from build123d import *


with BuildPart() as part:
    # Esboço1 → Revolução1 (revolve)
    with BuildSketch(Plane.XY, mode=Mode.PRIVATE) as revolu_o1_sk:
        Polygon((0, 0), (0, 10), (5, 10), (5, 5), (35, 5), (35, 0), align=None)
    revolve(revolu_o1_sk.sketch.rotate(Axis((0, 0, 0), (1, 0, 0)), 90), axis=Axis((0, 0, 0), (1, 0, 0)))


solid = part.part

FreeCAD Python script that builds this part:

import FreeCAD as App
import Part
import Sketcher
from FreeCAD import Vector

doc = App.newDocument("Part")
body = doc.addObject("PartDesign::Body", "Body")

# Sketch on XY plane
sketch1 = body.newObject("Sketcher::SketchObject", "Sketch")
sketch1.AttachmentSupport = (doc.getObject("XY_Plane"), [""])
sketch1.MapMode = "FlatFace"
sketch1.addGeometry([
    Part.LineSegment(Vector(0, 10, 0), Vector(0, 0, 0)),  # 0
    Part.LineSegment(Vector(0, 0, 0), Vector(35, 0, 0)),  # 1
    Part.LineSegment(Vector(35, 0, 0), Vector(35, 5, 0)),  # 2
    Part.LineSegment(Vector(35, 5, 0), Vector(5, 5, 0)),  # 3
    Part.LineSegment(Vector(5, 5, 0), Vector(5, 10, 0)),  # 4
    Part.LineSegment(Vector(5, 10, 0), Vector(0, 10, 0)),  # 5
], False)
sketch1.addConstraint([
    Sketcher.Constraint("Coincident", 0, 2, 1, 1),
    Sketcher.Constraint("Coincident", 1, 2, 2, 1),
    Sketcher.Constraint("Coincident", 2, 2, 3, 1),
    Sketcher.Constraint("Coincident", 3, 2, 4, 1),
    Sketcher.Constraint("Coincident", 4, 2, 5, 1),
    Sketcher.Constraint("Coincident", 5, 2, 0, 1),
    Sketcher.Constraint("Vertical", 0),
    Sketcher.Constraint("Horizontal", 1),
    Sketcher.Constraint("Vertical", 2),
    Sketcher.Constraint("Horizontal", 3),
    Sketcher.Constraint("Vertical", 4),
    Sketcher.Constraint("Horizontal", 5),
    Sketcher.Constraint("Coincident", 0, 2, -1, 1),
    Sketcher.Constraint("Equal", 5, 2),
    Sketcher.Constraint("Equal", 2, 4),
    Sketcher.Constraint("DistanceX", 1, 1, 1, 2, 35.0),
    Sketcher.Constraint("DistanceX", 3, 2, 3, 1, 30.0),
])
revolution = body.newObject("PartDesign::Revolution", "Revolution")
revolution.Profile = sketch1
revolution.ReferenceAxis = (sketch1, ["H_Axis"])
revolution.Angle = 360

doc.recompute()
